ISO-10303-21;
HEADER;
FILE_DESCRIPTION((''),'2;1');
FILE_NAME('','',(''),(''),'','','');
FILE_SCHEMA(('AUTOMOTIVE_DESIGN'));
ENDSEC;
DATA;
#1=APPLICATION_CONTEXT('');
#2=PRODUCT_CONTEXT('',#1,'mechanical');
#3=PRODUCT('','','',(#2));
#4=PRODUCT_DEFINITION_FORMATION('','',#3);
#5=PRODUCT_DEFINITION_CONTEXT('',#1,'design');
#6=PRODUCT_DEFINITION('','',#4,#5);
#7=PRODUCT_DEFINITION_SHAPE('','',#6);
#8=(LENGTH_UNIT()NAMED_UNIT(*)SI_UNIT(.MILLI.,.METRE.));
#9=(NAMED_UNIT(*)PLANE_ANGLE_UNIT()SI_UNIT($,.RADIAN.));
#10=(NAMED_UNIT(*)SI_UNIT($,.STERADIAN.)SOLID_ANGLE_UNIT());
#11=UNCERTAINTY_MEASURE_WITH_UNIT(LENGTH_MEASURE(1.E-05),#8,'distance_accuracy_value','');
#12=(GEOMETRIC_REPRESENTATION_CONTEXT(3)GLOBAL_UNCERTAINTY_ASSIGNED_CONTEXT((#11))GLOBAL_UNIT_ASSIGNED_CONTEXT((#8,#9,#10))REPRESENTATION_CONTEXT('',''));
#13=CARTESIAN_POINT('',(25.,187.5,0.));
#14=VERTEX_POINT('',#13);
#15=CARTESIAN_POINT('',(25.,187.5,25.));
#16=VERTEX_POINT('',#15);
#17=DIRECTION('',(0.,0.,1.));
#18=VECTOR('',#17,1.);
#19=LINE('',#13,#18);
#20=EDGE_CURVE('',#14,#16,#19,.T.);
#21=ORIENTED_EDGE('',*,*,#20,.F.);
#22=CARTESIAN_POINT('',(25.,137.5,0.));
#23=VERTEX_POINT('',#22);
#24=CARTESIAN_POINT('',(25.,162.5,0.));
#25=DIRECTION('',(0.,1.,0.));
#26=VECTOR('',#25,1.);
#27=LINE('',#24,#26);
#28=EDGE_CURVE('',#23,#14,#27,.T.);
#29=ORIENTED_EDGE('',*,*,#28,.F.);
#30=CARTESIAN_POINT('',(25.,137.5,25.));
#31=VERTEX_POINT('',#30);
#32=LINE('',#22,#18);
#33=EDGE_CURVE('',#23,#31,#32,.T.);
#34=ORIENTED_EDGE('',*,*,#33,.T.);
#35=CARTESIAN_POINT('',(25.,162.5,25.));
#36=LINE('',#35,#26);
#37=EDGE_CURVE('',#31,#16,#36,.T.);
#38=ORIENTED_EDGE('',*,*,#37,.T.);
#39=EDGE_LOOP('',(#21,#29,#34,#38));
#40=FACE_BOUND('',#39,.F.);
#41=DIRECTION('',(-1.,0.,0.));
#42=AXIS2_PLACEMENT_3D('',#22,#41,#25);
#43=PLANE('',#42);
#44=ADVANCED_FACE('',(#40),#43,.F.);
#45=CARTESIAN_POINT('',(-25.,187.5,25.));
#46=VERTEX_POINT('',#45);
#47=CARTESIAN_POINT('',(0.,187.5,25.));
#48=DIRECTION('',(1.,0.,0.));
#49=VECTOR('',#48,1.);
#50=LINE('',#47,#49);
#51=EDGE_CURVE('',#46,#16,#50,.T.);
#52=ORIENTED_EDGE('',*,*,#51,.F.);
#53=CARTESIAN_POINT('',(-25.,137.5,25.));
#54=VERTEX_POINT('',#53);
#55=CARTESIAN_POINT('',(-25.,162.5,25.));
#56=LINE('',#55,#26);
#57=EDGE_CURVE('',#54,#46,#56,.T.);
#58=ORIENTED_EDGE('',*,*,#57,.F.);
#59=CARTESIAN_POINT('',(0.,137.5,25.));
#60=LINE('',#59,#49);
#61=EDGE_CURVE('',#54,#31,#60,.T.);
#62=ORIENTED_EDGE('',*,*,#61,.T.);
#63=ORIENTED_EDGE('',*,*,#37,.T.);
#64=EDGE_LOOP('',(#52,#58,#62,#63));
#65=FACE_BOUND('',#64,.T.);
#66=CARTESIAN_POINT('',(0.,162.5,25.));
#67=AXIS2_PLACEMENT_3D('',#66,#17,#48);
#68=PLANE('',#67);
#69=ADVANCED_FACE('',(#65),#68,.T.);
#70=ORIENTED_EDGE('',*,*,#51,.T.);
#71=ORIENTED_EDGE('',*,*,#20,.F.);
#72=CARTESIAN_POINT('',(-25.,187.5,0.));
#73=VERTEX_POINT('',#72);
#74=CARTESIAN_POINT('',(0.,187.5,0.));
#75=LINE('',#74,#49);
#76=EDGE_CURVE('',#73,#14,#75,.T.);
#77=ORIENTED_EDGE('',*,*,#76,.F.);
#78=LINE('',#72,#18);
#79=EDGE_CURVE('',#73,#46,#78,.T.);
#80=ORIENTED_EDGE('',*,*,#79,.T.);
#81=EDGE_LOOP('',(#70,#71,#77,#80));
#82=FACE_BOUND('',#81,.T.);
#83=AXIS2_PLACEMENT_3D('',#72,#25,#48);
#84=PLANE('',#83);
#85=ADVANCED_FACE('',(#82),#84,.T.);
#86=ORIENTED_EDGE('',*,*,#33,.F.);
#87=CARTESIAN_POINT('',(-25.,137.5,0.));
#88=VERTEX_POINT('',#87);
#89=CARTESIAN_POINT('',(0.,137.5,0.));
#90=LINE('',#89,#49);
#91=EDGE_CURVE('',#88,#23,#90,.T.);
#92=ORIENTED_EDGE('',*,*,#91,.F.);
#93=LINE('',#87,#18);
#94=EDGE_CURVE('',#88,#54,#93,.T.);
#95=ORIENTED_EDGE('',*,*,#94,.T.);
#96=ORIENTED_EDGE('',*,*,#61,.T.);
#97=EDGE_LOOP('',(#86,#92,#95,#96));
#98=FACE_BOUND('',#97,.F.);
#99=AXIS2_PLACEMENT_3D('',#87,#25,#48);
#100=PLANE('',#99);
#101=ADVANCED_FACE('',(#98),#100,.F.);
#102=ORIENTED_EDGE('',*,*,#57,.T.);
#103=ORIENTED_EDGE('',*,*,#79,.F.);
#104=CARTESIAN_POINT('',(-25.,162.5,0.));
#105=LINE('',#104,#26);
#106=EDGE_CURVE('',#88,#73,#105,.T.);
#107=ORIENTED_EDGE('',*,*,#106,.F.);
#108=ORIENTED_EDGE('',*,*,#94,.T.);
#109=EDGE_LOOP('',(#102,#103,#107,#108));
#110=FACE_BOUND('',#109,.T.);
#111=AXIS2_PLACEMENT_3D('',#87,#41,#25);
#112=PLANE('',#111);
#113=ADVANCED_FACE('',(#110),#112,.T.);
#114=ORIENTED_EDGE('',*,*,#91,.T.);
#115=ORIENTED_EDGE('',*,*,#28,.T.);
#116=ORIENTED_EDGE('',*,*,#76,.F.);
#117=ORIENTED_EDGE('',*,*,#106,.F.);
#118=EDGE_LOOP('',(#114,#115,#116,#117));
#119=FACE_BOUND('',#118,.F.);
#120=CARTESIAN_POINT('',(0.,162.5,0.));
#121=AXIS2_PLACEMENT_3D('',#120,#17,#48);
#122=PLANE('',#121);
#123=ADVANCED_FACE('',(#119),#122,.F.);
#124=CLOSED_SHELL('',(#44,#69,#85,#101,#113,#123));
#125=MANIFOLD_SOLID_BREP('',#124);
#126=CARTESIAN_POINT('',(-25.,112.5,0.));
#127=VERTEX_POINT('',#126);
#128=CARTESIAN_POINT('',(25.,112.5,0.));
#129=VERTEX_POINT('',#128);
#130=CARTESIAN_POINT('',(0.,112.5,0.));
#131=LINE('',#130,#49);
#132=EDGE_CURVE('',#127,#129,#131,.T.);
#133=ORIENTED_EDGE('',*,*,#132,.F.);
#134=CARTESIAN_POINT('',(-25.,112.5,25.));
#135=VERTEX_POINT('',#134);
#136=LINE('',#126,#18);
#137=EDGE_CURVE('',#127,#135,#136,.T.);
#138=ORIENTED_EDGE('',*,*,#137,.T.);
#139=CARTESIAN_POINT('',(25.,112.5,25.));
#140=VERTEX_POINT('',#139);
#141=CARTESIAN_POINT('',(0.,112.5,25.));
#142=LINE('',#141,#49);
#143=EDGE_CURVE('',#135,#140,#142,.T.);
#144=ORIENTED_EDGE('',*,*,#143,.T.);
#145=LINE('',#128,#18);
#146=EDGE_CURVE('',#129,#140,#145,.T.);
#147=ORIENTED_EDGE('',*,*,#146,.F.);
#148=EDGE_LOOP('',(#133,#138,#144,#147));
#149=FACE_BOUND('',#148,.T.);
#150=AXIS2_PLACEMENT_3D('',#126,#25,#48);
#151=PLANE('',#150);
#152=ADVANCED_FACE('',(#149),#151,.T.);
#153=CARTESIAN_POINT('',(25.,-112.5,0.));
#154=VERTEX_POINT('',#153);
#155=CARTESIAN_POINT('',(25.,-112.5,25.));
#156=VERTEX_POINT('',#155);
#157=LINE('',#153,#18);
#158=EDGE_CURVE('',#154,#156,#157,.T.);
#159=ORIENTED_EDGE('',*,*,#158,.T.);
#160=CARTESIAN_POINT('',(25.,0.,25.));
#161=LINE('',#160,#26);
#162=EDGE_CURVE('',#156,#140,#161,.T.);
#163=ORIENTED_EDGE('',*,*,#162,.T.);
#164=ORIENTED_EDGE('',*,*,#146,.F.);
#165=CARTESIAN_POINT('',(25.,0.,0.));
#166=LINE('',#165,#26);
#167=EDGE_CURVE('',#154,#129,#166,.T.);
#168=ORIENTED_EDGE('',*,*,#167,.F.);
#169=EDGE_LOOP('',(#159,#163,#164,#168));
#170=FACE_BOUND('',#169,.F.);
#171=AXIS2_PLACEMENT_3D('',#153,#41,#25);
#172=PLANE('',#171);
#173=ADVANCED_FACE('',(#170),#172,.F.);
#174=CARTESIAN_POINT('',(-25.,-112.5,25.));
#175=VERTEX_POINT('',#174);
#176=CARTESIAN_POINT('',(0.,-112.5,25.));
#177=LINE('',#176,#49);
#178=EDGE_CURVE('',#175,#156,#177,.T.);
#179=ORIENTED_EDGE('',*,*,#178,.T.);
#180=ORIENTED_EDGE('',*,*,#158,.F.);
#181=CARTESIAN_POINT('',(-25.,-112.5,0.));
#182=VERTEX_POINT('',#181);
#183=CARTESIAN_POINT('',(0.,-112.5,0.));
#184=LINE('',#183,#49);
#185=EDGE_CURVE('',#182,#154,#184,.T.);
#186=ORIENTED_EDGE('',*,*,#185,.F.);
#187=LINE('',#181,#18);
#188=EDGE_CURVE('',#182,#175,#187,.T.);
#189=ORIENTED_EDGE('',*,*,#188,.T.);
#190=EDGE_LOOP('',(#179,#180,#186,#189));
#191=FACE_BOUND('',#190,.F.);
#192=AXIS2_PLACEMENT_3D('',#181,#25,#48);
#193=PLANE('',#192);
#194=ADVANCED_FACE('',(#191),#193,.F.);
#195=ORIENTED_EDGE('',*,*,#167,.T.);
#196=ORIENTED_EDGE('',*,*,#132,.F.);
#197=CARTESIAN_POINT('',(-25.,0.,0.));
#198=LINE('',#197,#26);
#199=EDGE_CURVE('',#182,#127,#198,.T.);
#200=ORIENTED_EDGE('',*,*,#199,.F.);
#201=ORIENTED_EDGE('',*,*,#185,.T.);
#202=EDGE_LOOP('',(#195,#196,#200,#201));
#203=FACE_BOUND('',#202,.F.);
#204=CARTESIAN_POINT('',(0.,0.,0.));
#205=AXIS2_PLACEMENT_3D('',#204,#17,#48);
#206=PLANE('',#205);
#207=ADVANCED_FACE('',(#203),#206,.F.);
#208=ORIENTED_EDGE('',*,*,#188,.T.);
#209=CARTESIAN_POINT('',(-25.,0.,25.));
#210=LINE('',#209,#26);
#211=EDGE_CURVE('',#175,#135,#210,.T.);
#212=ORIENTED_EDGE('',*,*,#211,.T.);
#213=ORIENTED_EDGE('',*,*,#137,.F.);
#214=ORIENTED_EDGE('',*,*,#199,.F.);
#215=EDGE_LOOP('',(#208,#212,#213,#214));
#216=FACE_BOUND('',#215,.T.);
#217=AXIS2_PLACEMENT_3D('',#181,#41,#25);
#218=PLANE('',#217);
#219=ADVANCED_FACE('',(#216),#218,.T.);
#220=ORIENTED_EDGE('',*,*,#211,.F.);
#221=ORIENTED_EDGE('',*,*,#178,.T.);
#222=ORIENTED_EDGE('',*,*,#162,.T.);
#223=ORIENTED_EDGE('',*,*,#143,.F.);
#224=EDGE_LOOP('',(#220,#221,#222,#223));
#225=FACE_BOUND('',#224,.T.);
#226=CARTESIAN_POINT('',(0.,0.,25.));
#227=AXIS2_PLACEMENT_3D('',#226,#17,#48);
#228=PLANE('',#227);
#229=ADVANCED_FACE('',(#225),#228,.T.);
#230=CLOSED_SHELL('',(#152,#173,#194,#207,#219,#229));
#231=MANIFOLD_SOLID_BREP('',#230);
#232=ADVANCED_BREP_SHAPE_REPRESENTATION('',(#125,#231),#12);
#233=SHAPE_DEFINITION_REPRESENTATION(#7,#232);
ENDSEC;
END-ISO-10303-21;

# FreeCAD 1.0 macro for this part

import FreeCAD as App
import Part
import Sketcher
from FreeCAD import Vector

doc = App.newDocument("Part")
body = doc.addObject("PartDesign::Body", "Body")
body.AllowCompound = True

sketch1 = doc.addObject("Sketcher::SketchObject", "Sketch")
body.addObject(sketch1)
sketch1.AttachmentSupport = (doc.XY_Plane, [""])
sketch1.MapMode = "FlatFace"
sketch1.addGeometry([
    Part.LineSegment(Vector(-25, 112.5, 0), Vector(-25, -112.5, 0)),
    Part.LineSegment(Vector(-25, -112.5, 0), Vector(25, -112.5, 0)),
    Part.LineSegment(Vector(25, -112.5, 0), Vector(25, 112.5, 0)),
    Part.LineSegment(Vector(25, 112.5, 0), Vector(-25, 112.5, 0)),
    Part.LineSegment(Vector(-25, 187.5, 0), Vector(-25, 137.5, 0)),
    Part.LineSegment(Vector(-25, 137.5, 0), Vector(25, 137.5, 0)),
    Part.LineSegment(Vector(25, 137.5, 0), Vector(25, 187.5, 0)),
    Part.LineSegment(Vector(25, 187.5, 0), Vector(-25, 187.5, 0)),
], False)
sketch1.addConstraint([
    Sketcher.Constraint("Coincident", 0, 2, 1, 1),
    Sketcher.Constraint("Coincident", 1, 2, 2, 1),
    Sketcher.Constraint("Coincident", 2, 2, 3, 1),
    Sketcher.Constraint("Coincident", 3, 2, 0, 1),
    Sketcher.Constraint("Coincident", 4, 2, 5, 1),
    Sketcher.Constraint("Coincident", 5, 2, 6, 1),
    Sketcher.Constraint("Coincident", 6, 2, 7, 1),
    Sketcher.Constraint("Coincident", 7, 2, 4, 1),
    Sketcher.Constraint("Vertical", 0),
    Sketcher.Constraint("Horizontal", 1),
    Sketcher.Constraint("Vertical", 2),
    Sketcher.Constraint("Horizontal", 3),
    Sketcher.Constraint("Vertical", 4),
    Sketcher.Constraint("Horizontal", 5),
    Sketcher.Constraint("Vertical", 6),
    Sketcher.Constraint("Horizontal", 7),
    Sketcher.Constraint("Symmetric", 0, 2, 2, 2, -1, 1),
    Sketcher.Constraint("Vertical", 3, 2, 4, 2),
    Sketcher.Constraint("Vertical", 2, 2, 5, 2),
    Sketcher.Constraint("Equal", 7, 4),
    Sketcher.Constraint("DistanceX", 1, 1, 1, 2, 50.0),
    Sketcher.Constraint("DistanceY", 0, 2, 0, 1, 225.0),
    Sketcher.Constraint("DistanceY", 3, 2, 4, 2, 25.0),
])
pad1 = doc.addObject("PartDesign::Pad", "Pad")
body.addObject(pad1)
pad1.Profile = sketch1
pad1.Length = 25

doc.recompute()
